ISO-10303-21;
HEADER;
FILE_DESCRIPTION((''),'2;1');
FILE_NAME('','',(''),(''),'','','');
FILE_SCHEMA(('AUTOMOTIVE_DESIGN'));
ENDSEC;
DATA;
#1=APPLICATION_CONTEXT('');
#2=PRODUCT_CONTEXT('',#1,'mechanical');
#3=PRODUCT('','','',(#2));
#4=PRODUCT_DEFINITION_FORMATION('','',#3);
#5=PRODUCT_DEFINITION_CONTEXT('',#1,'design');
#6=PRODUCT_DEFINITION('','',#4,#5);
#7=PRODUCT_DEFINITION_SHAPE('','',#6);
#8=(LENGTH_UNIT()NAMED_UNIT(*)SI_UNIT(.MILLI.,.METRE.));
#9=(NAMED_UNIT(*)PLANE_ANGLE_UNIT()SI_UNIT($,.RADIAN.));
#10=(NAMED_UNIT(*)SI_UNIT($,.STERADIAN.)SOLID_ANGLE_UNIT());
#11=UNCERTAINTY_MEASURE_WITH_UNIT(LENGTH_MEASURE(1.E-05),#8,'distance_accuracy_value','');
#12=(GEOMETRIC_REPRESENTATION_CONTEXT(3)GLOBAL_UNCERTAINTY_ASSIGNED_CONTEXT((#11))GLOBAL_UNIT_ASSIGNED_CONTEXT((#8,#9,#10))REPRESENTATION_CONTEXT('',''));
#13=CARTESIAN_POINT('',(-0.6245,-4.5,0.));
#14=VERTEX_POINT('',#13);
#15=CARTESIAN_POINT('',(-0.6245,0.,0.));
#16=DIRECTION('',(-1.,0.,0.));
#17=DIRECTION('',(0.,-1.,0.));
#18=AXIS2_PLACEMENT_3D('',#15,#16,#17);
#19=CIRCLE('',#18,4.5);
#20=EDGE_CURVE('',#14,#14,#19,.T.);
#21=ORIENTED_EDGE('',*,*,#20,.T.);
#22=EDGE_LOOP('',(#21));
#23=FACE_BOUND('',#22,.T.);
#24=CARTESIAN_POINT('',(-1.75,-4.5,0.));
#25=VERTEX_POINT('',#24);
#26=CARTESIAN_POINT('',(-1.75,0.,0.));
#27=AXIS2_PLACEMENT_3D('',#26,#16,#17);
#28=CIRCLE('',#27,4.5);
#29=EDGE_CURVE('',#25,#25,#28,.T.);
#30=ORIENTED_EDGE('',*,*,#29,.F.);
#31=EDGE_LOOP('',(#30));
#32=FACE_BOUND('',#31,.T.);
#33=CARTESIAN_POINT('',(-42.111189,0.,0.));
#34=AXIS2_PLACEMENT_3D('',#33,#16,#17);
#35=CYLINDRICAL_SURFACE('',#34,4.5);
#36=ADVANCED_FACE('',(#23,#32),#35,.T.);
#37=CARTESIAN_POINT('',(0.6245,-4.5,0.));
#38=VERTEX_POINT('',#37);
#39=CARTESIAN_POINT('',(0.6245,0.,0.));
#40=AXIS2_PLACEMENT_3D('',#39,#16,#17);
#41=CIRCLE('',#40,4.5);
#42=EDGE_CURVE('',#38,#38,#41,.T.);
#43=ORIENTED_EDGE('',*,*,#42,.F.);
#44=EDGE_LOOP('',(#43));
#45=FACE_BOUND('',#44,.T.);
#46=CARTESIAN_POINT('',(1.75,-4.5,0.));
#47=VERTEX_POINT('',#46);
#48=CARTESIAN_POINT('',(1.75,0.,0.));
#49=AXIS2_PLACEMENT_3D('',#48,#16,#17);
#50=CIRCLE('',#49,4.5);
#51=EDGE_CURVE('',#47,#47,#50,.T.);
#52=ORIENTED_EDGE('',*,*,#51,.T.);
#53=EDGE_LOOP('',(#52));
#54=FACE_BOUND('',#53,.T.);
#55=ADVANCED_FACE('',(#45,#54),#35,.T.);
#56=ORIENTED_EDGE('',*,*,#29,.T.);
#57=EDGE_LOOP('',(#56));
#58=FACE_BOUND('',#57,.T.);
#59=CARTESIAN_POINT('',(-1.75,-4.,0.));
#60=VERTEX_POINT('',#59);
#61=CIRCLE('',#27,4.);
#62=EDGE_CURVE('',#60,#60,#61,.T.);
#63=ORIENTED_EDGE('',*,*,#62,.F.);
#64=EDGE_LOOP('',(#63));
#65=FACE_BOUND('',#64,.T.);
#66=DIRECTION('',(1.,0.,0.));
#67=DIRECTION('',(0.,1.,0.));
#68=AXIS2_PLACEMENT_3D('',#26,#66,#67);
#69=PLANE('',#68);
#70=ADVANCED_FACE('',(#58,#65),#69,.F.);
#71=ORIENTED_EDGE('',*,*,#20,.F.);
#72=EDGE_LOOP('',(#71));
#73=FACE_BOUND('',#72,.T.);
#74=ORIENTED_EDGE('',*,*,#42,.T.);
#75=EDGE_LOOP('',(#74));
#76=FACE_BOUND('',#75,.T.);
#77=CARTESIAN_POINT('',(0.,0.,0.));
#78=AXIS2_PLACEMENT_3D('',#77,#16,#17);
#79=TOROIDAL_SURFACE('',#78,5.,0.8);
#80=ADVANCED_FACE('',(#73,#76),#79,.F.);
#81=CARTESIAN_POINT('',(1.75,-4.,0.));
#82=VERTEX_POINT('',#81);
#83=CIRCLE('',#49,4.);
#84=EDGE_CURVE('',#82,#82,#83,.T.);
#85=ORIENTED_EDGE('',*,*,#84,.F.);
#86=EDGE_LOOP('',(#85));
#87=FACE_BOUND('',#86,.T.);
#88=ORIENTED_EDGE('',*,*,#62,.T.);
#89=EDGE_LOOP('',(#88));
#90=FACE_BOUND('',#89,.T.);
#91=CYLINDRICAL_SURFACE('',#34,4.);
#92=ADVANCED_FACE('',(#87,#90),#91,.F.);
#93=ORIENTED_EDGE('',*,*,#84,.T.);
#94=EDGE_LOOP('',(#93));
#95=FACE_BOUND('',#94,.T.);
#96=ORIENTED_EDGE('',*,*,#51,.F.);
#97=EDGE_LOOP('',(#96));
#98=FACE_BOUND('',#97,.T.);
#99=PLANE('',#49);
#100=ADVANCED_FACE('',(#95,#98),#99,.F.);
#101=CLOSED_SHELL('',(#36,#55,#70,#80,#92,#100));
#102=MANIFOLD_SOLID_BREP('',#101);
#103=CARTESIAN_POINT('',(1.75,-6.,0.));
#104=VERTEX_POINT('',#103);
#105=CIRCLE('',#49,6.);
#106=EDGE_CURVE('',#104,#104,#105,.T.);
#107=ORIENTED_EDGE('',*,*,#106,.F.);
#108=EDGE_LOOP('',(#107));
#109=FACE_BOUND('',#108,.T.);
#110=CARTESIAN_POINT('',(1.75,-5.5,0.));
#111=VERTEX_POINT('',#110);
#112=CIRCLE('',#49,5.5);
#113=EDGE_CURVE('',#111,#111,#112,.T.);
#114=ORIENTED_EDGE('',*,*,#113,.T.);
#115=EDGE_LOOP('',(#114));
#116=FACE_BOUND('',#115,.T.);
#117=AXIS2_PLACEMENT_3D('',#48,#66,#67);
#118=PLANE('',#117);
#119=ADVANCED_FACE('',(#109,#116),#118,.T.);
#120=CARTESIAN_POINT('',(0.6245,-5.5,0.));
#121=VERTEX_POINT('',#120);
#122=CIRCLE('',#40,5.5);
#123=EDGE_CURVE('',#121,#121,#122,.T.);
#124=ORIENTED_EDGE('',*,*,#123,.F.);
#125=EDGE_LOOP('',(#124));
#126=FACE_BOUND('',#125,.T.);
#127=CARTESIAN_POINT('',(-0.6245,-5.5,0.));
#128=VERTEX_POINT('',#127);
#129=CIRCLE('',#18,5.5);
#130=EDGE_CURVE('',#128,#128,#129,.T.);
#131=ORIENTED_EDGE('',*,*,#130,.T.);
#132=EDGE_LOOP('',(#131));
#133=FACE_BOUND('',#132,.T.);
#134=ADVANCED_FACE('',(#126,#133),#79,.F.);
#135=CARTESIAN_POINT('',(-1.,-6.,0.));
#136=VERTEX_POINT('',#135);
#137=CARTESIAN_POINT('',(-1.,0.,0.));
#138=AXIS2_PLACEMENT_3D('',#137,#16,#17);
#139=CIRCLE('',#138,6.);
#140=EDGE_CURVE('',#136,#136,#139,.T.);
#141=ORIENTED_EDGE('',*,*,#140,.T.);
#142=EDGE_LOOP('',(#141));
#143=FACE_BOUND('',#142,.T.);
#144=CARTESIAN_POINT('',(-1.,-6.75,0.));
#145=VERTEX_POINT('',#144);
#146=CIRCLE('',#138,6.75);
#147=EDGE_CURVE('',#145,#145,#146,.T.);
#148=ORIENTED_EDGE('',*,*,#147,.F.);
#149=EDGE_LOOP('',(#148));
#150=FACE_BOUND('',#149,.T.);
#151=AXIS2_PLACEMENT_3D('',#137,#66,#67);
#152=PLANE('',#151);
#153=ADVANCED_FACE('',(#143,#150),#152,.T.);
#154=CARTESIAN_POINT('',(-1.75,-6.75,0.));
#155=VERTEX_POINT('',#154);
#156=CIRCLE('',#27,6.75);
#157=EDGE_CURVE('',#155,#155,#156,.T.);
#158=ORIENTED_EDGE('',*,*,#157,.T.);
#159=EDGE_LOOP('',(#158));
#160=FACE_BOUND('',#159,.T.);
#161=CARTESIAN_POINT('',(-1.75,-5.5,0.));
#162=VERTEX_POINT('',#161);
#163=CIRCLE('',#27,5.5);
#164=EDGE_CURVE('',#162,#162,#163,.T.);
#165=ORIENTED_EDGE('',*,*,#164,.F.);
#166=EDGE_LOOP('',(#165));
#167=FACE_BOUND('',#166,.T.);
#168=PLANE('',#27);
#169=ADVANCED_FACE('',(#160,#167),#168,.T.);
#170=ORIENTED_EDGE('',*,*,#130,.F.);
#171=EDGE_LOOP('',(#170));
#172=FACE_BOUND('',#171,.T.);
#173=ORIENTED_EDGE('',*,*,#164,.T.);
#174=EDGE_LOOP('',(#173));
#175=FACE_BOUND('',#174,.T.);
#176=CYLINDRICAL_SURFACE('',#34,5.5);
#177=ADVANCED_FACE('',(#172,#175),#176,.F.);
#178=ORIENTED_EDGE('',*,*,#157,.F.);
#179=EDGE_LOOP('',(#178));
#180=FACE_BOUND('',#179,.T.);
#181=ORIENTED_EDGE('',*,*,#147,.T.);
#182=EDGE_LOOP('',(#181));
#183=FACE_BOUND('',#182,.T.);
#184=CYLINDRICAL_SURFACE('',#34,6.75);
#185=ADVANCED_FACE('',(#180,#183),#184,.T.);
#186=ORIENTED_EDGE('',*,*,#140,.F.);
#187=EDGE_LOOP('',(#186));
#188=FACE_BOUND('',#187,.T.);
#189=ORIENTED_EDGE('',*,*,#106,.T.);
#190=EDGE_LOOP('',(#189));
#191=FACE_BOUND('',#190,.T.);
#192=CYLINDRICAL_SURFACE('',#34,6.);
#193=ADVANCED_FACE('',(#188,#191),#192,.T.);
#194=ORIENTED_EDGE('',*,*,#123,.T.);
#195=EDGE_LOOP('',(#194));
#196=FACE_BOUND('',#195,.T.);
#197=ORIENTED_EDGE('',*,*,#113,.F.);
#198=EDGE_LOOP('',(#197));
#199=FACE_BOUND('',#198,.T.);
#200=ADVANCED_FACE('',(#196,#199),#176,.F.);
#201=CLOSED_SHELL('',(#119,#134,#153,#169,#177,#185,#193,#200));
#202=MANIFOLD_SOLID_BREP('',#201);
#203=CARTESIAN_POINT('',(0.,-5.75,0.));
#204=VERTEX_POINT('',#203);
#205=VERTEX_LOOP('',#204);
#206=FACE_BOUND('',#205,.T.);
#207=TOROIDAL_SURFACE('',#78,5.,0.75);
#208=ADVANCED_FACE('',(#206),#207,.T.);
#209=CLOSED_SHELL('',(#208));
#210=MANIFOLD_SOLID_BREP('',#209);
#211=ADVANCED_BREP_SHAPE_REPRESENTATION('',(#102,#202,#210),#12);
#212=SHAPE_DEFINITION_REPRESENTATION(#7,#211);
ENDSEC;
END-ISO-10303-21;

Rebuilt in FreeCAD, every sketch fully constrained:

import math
import FreeCAD as App
import Part
import Sketcher

V = App.Vector
Q = App.Units.Quantity

doc = App.newDocument("Part")
body = doc.addObject("PartDesign::Body", "Body")
body.AllowCompound = True

# Sketch on XY plane
sketch1 = body.newObject("Sketcher::SketchObject", "Sketch")
sketch1.AttachmentSupport = (doc.getObject("XY_Plane"), [""])
sketch1.MapMode = "FlatFace"
sketch1.addGeometry(Part.LineSegment(V(-1, 6, 0), V(-1, 6.8, 0)), False)
sketch1.addGeometry(Part.LineSegment(V(-1, 6.8, 0), V(-1.8, 6.8, 0)), False)
sketch1.addGeometry(Part.LineSegment(V(-1.8, 6.8, 0), V(-1.8, 5.5, 0)), False)
sketch1.addGeometry(Part.LineSegment(V(-1.8, 5.5, 0), V(-0.6, 5.5, 0)), False)
sketch1.addGeometry(Part.ArcOfCircle(Part.Circle(V(0, 5, 0), V(0, 0, 1), 0.8), math.radians(39), math.radians(141)), False)
sketch1.addGeometry(Part.LineSegment(V(0.6, 5.5, 0), V(1.8, 5.5, 0)), False)
sketch1.addGeometry(Part.LineSegment(V(1.8, 5.5, 0), V(1.8, 6, 0)), False)
sketch1.addGeometry(Part.LineSegment(V(1.8, 6, 0), V(-1, 6, 0)), False)
sketch1.addGeometry(Part.LineSegment(V(-1.8, 4.5, 0), V(-1.8, 4, 0)), False)
sketch1.addGeometry(Part.LineSegment(V(-1.8, 4, 0), V(1.8, 4, 0)), False)
sketch1.addGeometry(Part.LineSegment(V(1.8, 4, 0), V(1.8, 4.5, 0)), False)
sketch1.addGeometry(Part.LineSegment(V(1.8, 4.5, 0), V(0.6, 4.5, 0)), False)
sketch1.addGeometry(Part.ArcOfCircle(Part.Circle(V(0, 5, 0), V(0, 0, 1), 0.8), math.radians(-141), math.radians(-39)), False)
sketch1.addGeometry(Part.LineSegment(V(-0.6, 4.5, 0), V(-1.8, 4.5, 0)), False)
sketch1.addConstraint(Sketcher.Constraint("Coincident", 0, 2, 1, 1))
sketch1.addConstraint(Sketcher.Constraint("Coincident", 1, 2, 2, 1))
sketch1.addConstraint(Sketcher.Constraint("Coincident", 2, 2, 3, 1))
sketch1.addConstraint(Sketcher.Constraint("Coincident", 3, 2, 4, 2))
sketch1.addConstraint(Sketcher.Constraint("Coincident", 4, 1, 5, 1))
sketch1.addConstraint(Sketcher.Constraint("Coincident", 5, 2, 6, 1))
sketch1.addConstraint(Sketcher.Constraint("Coincident", 6, 2, 7, 1))
sketch1.addConstraint(Sketcher.Constraint("Coincident", 7, 2, 0, 1))
sketch1.addConstraint(Sketcher.Constraint("Coincident", 8, 2, 9, 1))
sketch1.addConstraint(Sketcher.Constraint("Coincident", 9, 2, 10, 1))
sketch1.addConstraint(Sketcher.Constraint("Coincident", 10, 2, 11, 1))
sketch1.addConstraint(Sketcher.Constraint("Coincident", 11, 2, 12, 2))
sketch1.addConstraint(Sketcher.Constraint("Coincident", 12, 1, 13, 1))
sketch1.addConstraint(Sketcher.Constraint("Coincident", 13, 2, 8, 1))
sketch1.addConstraint(Sketcher.Constraint("Vertical", 0))
sketch1.addConstraint(Sketcher.Constraint("Horizontal", 1))
sketch1.addConstraint(Sketcher.Constraint("Vertical", 2))
sketch1.addConstraint(Sketcher.Constraint("Horizontal", 3))
sketch1.addConstraint(Sketcher.Constraint("Horizontal", 5))
sketch1.addConstraint(Sketcher.Constraint("Vertical", 6))
sketch1.addConstraint(Sketcher.Constraint("Horizontal", 7))
sketch1.addConstraint(Sketcher.Constraint("Vertical", 8))
sketch1.addConstraint(Sketcher.Constraint("Horizontal", 9))
sketch1.addConstraint(Sketcher.Constraint("Vertical", 10))
sketch1.addConstraint(Sketcher.Constraint("Horizontal", 11))
sketch1.addConstraint(Sketcher.Constraint("Horizontal", 13))
sketch1.addConstraint(Sketcher.Constraint("Coincident", 12, 3, 4, 3))
sketch1.addConstraint(Sketcher.Constraint("Equal", 4, 12))
sketch1.addConstraint(Sketcher.Constraint("Symmetric", 3, 2, 4, 1, -2))
sketch1.addConstraint(Sketcher.Constraint("Symmetric", 10, 2, 13, 2, -2))
sketch1.addConstraint(Sketcher.Constraint("Vertical", 2, 2, 8, 2))
sketch1.addConstraint(Sketcher.Constraint("Vertical", 6, 2, 9, 2))
sketch1.addConstraint(Sketcher.Constraint("Vertical", 4, 1, 11, 2))
sketch1.addConstraint(Sketcher.Constraint("Equal", 1, 0))
sketch1.addConstraint(Sketcher.Constraint("Equal", 6, 8))
sketch1.addConstraint(Sketcher.Constraint("Radius", 4, Q("0.8 mm")))
sketch1.addConstraint(Sketcher.Constraint("DistanceX", 9, 1, 9, 2, Q("3.5 mm")))
sketch1.addConstraint(Sketcher.Constraint("DistanceY", 6, 1, 6, 2, Q("0.5 mm")))
sketch1.addConstraint(Sketcher.Constraint("DistanceY", -1, 1, 4, 3, Q("5 mm")))
sketch1.addConstraint(Sketcher.Constraint("DistanceX", 0, 2, -1, 1, Q("1 mm")))
sketch1.addConstraint(Sketcher.Constraint("DistanceY", -1, 1, 6, 2, Q("6 mm")))
revolution = body.newObject("PartDesign::Revolution", "Revolution")
revolution.Profile = sketch1
revolution.ReferenceAxis = (sketch1, ["H_Axis"])
revolution.Angle = 360
body2 = doc.addObject("PartDesign::Body", "Body001")

# Sketch on XY plane
sketch2 = body2.newObject("Sketcher::SketchObject", "Sketch001")
sketch2.AttachmentSupport = (doc.getObject("XY_Plane001"), [""])
sketch2.MapMode = "FlatFace"
sketch2.addGeometry(Part.Circle(V(0, 5, 0), V(0, 0, 1), 0.8), False)
sketch2.addConstraint(Sketcher.Constraint("PointOnObject", 0, 3, -2))
sketch2.addConstraint(Sketcher.Constraint("Diameter", 0, Q("1.5 mm")))
sketch2.addConstraint(Sketcher.Constraint("DistanceY", -1, 1, 0, 3, Q("5 mm")))
revolution2 = body2.newObject("PartDesign::Revolution", "Revolution001")
revolution2.Profile = sketch2
revolution2.ReferenceAxis = (sketch2, ["H_Axis"])
revolution2.Angle = 360

doc.recompute()
